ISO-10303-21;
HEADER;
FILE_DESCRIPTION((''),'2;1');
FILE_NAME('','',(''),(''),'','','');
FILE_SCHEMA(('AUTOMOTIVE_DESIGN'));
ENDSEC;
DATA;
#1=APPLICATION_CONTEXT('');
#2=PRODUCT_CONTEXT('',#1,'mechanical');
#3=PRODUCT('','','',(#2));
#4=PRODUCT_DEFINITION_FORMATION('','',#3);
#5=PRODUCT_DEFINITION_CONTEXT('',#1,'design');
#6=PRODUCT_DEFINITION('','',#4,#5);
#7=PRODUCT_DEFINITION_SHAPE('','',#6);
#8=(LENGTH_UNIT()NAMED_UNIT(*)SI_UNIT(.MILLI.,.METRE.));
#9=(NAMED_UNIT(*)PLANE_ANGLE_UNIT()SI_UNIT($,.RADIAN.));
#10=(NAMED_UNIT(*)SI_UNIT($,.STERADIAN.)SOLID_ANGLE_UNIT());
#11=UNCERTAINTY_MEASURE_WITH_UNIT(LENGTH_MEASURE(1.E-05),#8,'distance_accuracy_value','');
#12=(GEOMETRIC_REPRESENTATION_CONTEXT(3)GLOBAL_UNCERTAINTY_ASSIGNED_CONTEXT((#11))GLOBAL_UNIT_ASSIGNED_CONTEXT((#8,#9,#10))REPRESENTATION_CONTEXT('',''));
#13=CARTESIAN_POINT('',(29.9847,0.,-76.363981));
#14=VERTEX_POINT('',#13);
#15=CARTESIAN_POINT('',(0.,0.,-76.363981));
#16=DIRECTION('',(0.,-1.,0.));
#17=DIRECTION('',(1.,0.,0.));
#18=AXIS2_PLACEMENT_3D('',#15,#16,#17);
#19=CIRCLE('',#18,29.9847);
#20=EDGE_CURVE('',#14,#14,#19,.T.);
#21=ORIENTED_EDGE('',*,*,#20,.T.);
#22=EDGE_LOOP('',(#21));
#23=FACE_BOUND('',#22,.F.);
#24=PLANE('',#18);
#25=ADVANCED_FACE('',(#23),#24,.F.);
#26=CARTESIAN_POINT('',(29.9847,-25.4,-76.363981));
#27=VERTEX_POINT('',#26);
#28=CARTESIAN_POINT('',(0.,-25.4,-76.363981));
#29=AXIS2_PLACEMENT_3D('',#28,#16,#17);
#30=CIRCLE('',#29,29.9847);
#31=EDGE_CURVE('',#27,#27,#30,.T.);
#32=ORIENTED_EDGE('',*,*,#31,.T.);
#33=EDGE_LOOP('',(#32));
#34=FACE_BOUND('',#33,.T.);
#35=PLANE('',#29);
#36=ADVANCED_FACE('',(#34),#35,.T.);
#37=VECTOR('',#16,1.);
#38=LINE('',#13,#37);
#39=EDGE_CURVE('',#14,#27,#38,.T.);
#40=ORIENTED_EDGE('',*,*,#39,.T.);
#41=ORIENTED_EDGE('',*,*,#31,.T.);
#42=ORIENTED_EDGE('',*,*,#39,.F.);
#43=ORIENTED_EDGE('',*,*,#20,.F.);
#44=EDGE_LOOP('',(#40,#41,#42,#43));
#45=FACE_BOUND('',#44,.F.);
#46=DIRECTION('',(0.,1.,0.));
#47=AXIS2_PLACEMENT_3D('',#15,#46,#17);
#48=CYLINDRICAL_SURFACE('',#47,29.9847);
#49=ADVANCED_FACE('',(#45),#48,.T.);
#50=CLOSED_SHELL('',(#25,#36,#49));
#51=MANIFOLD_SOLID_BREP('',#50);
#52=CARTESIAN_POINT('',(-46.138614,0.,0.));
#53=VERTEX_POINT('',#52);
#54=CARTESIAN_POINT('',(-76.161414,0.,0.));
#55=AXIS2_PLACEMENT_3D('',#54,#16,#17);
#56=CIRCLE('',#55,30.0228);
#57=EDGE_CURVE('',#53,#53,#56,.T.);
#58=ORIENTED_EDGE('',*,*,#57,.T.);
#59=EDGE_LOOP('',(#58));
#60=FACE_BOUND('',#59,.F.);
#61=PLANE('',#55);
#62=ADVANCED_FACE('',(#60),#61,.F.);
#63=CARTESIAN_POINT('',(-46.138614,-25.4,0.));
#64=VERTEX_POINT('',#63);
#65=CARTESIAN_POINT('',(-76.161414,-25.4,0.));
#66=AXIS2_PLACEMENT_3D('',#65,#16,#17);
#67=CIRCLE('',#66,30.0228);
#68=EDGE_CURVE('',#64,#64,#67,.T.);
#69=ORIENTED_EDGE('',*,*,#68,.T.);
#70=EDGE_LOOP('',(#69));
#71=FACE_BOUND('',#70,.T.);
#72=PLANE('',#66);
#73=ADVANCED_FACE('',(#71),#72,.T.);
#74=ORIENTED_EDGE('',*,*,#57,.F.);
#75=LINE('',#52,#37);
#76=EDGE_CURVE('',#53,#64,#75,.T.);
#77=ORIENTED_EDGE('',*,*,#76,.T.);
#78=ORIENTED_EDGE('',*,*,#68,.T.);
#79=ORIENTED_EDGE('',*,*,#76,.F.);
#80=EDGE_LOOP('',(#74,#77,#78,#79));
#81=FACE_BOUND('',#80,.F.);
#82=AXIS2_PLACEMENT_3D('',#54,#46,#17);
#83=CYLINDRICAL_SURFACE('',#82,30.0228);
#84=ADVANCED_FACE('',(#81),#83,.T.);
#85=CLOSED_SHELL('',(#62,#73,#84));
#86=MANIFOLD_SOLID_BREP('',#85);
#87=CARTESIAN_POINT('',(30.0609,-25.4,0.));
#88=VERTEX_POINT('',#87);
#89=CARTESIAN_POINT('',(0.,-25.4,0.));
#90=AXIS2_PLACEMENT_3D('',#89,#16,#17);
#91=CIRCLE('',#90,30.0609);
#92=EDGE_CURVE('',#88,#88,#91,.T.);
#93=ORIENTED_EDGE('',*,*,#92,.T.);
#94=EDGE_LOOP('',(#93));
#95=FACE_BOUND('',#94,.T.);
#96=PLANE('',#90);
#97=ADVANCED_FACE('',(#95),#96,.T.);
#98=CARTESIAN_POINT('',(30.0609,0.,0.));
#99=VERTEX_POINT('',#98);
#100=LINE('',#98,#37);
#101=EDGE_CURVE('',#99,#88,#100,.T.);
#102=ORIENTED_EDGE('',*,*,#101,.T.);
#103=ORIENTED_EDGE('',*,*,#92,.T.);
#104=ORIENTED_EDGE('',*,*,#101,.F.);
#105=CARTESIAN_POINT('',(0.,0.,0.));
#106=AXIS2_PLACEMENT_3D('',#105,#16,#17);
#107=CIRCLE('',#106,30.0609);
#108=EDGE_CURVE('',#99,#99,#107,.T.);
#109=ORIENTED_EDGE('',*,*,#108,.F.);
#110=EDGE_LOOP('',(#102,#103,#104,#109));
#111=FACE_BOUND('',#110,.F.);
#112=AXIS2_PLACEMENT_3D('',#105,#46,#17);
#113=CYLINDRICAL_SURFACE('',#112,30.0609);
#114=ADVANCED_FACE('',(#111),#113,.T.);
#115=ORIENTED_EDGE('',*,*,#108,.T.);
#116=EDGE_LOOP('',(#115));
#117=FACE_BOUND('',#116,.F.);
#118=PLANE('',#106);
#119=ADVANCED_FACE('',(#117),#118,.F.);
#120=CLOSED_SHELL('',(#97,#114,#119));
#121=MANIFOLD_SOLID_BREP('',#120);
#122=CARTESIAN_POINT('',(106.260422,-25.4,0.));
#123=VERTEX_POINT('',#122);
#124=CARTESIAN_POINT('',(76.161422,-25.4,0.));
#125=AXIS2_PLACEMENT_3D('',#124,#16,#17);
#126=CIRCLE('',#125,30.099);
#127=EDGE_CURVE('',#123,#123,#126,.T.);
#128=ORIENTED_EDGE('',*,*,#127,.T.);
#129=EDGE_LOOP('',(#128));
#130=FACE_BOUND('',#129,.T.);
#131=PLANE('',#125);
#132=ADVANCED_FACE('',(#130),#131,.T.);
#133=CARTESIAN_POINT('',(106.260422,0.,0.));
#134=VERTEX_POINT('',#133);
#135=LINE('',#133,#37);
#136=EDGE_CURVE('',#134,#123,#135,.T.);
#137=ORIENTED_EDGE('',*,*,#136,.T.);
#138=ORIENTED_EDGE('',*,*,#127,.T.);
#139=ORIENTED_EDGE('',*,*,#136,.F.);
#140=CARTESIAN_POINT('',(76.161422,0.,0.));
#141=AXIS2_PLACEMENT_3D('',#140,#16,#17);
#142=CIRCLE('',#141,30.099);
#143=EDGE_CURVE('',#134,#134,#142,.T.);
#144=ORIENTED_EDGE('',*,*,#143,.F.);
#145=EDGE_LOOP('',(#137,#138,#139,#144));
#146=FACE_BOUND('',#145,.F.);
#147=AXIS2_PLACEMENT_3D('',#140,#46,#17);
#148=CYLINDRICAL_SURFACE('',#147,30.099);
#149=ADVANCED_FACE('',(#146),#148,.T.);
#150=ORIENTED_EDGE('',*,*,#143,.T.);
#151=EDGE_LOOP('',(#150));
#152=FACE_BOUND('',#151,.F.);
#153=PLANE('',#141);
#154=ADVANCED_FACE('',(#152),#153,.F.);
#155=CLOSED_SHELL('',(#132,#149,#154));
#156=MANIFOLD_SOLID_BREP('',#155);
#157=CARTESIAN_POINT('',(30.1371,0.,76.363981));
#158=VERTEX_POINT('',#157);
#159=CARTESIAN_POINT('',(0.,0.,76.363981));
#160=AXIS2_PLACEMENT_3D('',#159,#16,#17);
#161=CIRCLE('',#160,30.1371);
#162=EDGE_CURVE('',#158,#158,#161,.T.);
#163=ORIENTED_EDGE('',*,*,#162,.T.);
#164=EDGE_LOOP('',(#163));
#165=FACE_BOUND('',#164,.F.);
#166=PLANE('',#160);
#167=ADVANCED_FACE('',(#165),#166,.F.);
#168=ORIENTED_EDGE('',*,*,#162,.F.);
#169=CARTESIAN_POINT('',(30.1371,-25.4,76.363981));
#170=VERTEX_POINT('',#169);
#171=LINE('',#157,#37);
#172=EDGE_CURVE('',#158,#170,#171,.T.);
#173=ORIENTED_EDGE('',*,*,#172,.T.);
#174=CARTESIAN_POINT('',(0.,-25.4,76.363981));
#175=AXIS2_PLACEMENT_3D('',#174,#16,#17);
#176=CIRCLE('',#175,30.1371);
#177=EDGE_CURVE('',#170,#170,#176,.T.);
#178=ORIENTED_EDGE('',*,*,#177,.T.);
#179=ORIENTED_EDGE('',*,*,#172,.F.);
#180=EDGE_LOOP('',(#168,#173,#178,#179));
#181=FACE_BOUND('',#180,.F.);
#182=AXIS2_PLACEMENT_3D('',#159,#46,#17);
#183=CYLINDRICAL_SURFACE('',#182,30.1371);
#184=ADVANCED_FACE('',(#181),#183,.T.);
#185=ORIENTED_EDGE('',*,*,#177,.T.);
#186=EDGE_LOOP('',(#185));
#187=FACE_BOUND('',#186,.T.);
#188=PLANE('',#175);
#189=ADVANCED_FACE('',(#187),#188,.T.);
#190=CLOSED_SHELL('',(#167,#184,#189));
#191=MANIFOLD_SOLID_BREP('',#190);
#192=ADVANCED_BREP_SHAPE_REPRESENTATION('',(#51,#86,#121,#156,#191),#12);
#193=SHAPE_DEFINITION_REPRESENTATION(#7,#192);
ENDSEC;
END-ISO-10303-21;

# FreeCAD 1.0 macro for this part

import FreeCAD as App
import Part
import Sketcher

V = App.Vector
Q = App.Units.Quantity

doc = App.newDocument("Part")
body = doc.addObject("PartDesign::Body", "Body")
body.AllowCompound = True

sketch1 = doc.addObject("Sketcher::SketchObject", "Sketch")
body.addObject(sketch1)
sketch1.AttachmentSupport = (doc.XZ_Plane, [""])
sketch1.MapMode = "FlatFace"
sketch1.addGeometry([
    Part.Circle(V(-76.161414, 0, 0), V(0, 0, 1), 30.0228),
    Part.Circle(V(0, 0, 0), V(0, 0, 1), 30.0609),
    Part.Circle(V(0, 76.363981, 0), V(0, 0, 1), 30.1371),
    Part.Circle(V(76.161422, 0, 0), V(0, 0, 1), 30.099),
    Part.Circle(V(0, -76.363981, 0), V(0, 0, 1), 29.9847),
], False)
sketch1.addConstraint([
    Sketcher.Constraint("Coincident", 1, 3, -1, 1),
    Sketcher.Constraint("Symmetric", 0, 3, 3, 3, -1, 1),
    Sketcher.Constraint("Symmetric", 2, 3, 4, 3, -1, 1),
    Sketcher.Constraint("PointOnObject", 0, 3, -1),
    Sketcher.Constraint("PointOnObject", 2, 3, -2),
    Sketcher.Constraint("Diameter", 3, Q("2.37 in")),
    Sketcher.Constraint("Diameter", 0, Q("2.364 in")),
    Sketcher.Constraint("Diameter", 1, Q("2.367 in")),
    Sketcher.Constraint("Diameter", 2, Q("2.373 in")),
    Sketcher.Constraint("Diameter", 4, Q("2.361 in")),
    Sketcher.Constraint("DistanceY", -1, 1, 2, 3, 76.363981),
    Sketcher.Constraint("DistanceX", -1, 1, 3, 3, 76.161422),
])
pad1 = doc.addObject("PartDesign::Pad", "Pad")
body.addObject(pad1)
pad1.Profile = sketch1
pad1.Length = Q("1 in")

doc.recompute()
